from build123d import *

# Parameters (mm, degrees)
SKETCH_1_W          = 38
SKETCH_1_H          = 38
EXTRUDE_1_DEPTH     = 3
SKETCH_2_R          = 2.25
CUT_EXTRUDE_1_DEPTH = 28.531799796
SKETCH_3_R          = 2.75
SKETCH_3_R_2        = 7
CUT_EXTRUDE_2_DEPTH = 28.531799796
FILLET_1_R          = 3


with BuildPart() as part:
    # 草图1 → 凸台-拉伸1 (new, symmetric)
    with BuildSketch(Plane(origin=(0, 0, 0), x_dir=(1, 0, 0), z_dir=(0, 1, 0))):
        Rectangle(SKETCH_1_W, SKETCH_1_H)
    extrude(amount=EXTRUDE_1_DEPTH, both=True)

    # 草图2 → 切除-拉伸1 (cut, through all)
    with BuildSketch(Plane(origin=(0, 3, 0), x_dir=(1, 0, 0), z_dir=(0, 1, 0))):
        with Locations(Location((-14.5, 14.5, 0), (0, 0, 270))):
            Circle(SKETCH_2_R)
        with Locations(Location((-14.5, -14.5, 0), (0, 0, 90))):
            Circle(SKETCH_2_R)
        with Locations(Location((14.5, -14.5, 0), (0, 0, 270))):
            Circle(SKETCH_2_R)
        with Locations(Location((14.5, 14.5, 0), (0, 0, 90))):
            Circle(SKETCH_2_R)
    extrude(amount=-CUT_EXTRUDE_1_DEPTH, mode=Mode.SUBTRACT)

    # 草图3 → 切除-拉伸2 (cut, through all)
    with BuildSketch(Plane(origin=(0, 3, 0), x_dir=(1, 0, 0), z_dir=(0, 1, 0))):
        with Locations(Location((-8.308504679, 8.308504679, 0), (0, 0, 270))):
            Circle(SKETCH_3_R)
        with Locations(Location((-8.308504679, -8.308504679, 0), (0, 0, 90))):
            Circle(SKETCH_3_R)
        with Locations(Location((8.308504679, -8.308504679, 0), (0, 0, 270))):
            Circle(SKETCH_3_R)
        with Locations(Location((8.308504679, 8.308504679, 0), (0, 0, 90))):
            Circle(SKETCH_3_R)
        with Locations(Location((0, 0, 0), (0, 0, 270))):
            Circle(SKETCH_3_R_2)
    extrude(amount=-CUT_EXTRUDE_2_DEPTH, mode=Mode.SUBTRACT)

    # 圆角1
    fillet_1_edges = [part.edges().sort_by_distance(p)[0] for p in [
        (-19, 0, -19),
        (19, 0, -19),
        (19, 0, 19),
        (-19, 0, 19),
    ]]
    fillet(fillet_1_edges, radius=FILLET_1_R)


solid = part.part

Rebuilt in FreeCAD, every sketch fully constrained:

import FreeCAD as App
import Part
import Sketcher

V = App.Vector


def edges_at(feature, points):
    """Names of the edges that pass closest to the given points."""
    edges = feature.Shape.Edges
    near = lambda p: min(range(len(edges)), key=lambda i: edges[i].distToShape(Part.Vertex(*p))[0])
    return sorted({f"Edge{near(p) + 1}" for p in points})


def add_polygon(sketch, points):
    """Adds a closed chain of lines whose ends are joined by coincident constraints."""
    first, n = sketch.GeometryCount, len(points)
    for a, b in zip(points, points[1:] + points[:1]):
        sketch.addGeometry(Part.LineSegment(App.Vector(*a, 0), App.Vector(*b, 0)), False)
    for i in range(n):
        sketch.addConstraint(Sketcher.Constraint("Coincident", first + i, 2, first + (i + 1) % n, 1))

doc = App.newDocument("Part")
body = doc.addObject("PartDesign::Body", "Body")

# Sketch on XZ plane
sketch1 = doc.addObject("Sketcher::SketchObject", "Sketch")
body.addObject(sketch1)
sketch1.AttachmentSupport = (doc.XZ_Plane, [""])
sketch1.MapMode = "FlatFace"
add_polygon(sketch1, [(-19, -19), (-19, 19), (19, 19), (19, -19)])  # lines 0-3
sketch1.addConstraint([
    Sketcher.Constraint("Vertical", 0),
    Sketcher.Constraint("Horizontal", 1),
    Sketcher.Constraint("Vertical", 2),
    Sketcher.Constraint("Horizontal", 3),
    Sketcher.Constraint("Symmetric", 0, 2, 2, 2, -1, 1),
    Sketcher.Constraint("Equal", 3, 0),
    Sketcher.Constraint("DistanceX", 1, 1, 1, 2, 38.0),
])
pad1 = doc.addObject("PartDesign::Pad", "Pad")
body.addObject(pad1)
pad1.Profile = sketch1
pad1.Length = 6
pad1.Midplane = True

# Sketch on XZ plane
sketch2 = doc.addObject("Sketcher::SketchObject", "Sketch001")
body.addObject(sketch2)
sketch2.AttachmentSupport = (doc.XZ_Plane, [""])
sketch2.MapMode = "FlatFace"
sketch2.AttachmentOffset = App.Placement(V(0, 0, -3), App.Rotation())
sketch2.addGeometry([
    Part.Circle(V(-14.5, -14.5, 0), V(0, 0, 1), 2.2),
    Part.Circle(V(-14.5, 14.5, 0), V(0, 0, 1), 2.2),
    Part.Circle(V(14.5, 14.5, 0), V(0, 0, 1), 2.2),
    Part.Circle(V(14.5, -14.5, 0), V(0, 0, 1), 2.2),
], False)
sketch2.addConstraint([
    Sketcher.Constraint("Equal", 0, 1),
    Sketcher.Constraint("Equal", 1, 2),
    Sketcher.Constraint("Equal", 2, 3),
    Sketcher.Constraint("Symmetric", 0, 3, 2, 3, -1, 1),
    Sketcher.Constraint("Symmetric", 1, 3, 3, 3, -1, 1),
    Sketcher.Constraint("Symmetric", 1, 3, 2, 3, -2),
    Sketcher.Constraint("Diameter", 0, 4.5),
    Sketcher.Constraint("DistanceY", 0, 3, 1, 3, 29.0),
    Sketcher.Constraint("DistanceX", 1, 3, 2, 3, 29.0),
])
pocket1 = doc.addObject("PartDesign::Pocket", "Pocket")
body.addObject(pocket1)
pocket1.Profile = sketch2
pocket1.Type = "ThroughAll"
pocket1.Reversed = True

# Sketch on XZ plane
sketch3 = doc.addObject("Sketcher::SketchObject", "Sketch002")
body.addObject(sketch3)
sketch3.AttachmentSupport = (doc.XZ_Plane, [""])
sketch3.MapMode = "FlatFace"
sketch3.AttachmentOffset = App.Placement(V(0, 0, -3), App.Rotation())
sketch3.addGeometry([
    Part.Circle(V(-8.3, -8.3, 0), V(0, 0, 1), 2.8),  # 0
    Part.Circle(V(-8.3, 8.3, 0), V(0, 0, 1), 2.8),  # 1
    Part.Circle(V(8.3, 8.3, 0), V(0, 0, 1), 2.8),  # 2
    Part.Circle(V(8.3, -8.3, 0), V(0, 0, 1), 2.8),  # 3
    Part.Circle(V(0, 0, 0), V(0, 0, 1), 7),  # 4
], False)
sketch3.addConstraint([
    Sketcher.Constraint("Coincident", 4, 3, -1, 1),
    Sketcher.Constraint("Equal", 0, 1),
    Sketcher.Constraint("Equal", 1, 2),
    Sketcher.Constraint("Equal", 2, 3),
    Sketcher.Constraint("Symmetric", 0, 3, 2, 3, -1, 1),
    Sketcher.Constraint("Symmetric", 1, 3, 3, 3, -1, 1),
    Sketcher.Constraint("Symmetric", 1, 3, 2, 3, -2),
    Sketcher.Constraint("Diameter", 4, 14.0),
    Sketcher.Constraint("Diameter", 0, 5.5),
    Sketcher.Constraint("DistanceY", 0, 3, 1, 3, 16.617009),
    Sketcher.Constraint("DistanceX", 1, 3, 2, 3, 16.617009),
])
pocket2 = doc.addObject("PartDesign::Pocket", "Pocket001")
body.addObject(pocket2)
pocket2.Profile = sketch3
pocket2.Type = "ThroughAll"
pocket2.Reversed = True
doc.recompute()

fillet = doc.addObject("PartDesign::Fillet", "Fillet")
body.addObject(fillet)
fillet.Base = (pocket2, edges_at(pocket2, [
    (-19, 0, -19),
    (19, 0, -19),
    (19, 0, 19),
    (-19, 0, 19),
]))
fillet.Radius = 3

doc.recompute()
